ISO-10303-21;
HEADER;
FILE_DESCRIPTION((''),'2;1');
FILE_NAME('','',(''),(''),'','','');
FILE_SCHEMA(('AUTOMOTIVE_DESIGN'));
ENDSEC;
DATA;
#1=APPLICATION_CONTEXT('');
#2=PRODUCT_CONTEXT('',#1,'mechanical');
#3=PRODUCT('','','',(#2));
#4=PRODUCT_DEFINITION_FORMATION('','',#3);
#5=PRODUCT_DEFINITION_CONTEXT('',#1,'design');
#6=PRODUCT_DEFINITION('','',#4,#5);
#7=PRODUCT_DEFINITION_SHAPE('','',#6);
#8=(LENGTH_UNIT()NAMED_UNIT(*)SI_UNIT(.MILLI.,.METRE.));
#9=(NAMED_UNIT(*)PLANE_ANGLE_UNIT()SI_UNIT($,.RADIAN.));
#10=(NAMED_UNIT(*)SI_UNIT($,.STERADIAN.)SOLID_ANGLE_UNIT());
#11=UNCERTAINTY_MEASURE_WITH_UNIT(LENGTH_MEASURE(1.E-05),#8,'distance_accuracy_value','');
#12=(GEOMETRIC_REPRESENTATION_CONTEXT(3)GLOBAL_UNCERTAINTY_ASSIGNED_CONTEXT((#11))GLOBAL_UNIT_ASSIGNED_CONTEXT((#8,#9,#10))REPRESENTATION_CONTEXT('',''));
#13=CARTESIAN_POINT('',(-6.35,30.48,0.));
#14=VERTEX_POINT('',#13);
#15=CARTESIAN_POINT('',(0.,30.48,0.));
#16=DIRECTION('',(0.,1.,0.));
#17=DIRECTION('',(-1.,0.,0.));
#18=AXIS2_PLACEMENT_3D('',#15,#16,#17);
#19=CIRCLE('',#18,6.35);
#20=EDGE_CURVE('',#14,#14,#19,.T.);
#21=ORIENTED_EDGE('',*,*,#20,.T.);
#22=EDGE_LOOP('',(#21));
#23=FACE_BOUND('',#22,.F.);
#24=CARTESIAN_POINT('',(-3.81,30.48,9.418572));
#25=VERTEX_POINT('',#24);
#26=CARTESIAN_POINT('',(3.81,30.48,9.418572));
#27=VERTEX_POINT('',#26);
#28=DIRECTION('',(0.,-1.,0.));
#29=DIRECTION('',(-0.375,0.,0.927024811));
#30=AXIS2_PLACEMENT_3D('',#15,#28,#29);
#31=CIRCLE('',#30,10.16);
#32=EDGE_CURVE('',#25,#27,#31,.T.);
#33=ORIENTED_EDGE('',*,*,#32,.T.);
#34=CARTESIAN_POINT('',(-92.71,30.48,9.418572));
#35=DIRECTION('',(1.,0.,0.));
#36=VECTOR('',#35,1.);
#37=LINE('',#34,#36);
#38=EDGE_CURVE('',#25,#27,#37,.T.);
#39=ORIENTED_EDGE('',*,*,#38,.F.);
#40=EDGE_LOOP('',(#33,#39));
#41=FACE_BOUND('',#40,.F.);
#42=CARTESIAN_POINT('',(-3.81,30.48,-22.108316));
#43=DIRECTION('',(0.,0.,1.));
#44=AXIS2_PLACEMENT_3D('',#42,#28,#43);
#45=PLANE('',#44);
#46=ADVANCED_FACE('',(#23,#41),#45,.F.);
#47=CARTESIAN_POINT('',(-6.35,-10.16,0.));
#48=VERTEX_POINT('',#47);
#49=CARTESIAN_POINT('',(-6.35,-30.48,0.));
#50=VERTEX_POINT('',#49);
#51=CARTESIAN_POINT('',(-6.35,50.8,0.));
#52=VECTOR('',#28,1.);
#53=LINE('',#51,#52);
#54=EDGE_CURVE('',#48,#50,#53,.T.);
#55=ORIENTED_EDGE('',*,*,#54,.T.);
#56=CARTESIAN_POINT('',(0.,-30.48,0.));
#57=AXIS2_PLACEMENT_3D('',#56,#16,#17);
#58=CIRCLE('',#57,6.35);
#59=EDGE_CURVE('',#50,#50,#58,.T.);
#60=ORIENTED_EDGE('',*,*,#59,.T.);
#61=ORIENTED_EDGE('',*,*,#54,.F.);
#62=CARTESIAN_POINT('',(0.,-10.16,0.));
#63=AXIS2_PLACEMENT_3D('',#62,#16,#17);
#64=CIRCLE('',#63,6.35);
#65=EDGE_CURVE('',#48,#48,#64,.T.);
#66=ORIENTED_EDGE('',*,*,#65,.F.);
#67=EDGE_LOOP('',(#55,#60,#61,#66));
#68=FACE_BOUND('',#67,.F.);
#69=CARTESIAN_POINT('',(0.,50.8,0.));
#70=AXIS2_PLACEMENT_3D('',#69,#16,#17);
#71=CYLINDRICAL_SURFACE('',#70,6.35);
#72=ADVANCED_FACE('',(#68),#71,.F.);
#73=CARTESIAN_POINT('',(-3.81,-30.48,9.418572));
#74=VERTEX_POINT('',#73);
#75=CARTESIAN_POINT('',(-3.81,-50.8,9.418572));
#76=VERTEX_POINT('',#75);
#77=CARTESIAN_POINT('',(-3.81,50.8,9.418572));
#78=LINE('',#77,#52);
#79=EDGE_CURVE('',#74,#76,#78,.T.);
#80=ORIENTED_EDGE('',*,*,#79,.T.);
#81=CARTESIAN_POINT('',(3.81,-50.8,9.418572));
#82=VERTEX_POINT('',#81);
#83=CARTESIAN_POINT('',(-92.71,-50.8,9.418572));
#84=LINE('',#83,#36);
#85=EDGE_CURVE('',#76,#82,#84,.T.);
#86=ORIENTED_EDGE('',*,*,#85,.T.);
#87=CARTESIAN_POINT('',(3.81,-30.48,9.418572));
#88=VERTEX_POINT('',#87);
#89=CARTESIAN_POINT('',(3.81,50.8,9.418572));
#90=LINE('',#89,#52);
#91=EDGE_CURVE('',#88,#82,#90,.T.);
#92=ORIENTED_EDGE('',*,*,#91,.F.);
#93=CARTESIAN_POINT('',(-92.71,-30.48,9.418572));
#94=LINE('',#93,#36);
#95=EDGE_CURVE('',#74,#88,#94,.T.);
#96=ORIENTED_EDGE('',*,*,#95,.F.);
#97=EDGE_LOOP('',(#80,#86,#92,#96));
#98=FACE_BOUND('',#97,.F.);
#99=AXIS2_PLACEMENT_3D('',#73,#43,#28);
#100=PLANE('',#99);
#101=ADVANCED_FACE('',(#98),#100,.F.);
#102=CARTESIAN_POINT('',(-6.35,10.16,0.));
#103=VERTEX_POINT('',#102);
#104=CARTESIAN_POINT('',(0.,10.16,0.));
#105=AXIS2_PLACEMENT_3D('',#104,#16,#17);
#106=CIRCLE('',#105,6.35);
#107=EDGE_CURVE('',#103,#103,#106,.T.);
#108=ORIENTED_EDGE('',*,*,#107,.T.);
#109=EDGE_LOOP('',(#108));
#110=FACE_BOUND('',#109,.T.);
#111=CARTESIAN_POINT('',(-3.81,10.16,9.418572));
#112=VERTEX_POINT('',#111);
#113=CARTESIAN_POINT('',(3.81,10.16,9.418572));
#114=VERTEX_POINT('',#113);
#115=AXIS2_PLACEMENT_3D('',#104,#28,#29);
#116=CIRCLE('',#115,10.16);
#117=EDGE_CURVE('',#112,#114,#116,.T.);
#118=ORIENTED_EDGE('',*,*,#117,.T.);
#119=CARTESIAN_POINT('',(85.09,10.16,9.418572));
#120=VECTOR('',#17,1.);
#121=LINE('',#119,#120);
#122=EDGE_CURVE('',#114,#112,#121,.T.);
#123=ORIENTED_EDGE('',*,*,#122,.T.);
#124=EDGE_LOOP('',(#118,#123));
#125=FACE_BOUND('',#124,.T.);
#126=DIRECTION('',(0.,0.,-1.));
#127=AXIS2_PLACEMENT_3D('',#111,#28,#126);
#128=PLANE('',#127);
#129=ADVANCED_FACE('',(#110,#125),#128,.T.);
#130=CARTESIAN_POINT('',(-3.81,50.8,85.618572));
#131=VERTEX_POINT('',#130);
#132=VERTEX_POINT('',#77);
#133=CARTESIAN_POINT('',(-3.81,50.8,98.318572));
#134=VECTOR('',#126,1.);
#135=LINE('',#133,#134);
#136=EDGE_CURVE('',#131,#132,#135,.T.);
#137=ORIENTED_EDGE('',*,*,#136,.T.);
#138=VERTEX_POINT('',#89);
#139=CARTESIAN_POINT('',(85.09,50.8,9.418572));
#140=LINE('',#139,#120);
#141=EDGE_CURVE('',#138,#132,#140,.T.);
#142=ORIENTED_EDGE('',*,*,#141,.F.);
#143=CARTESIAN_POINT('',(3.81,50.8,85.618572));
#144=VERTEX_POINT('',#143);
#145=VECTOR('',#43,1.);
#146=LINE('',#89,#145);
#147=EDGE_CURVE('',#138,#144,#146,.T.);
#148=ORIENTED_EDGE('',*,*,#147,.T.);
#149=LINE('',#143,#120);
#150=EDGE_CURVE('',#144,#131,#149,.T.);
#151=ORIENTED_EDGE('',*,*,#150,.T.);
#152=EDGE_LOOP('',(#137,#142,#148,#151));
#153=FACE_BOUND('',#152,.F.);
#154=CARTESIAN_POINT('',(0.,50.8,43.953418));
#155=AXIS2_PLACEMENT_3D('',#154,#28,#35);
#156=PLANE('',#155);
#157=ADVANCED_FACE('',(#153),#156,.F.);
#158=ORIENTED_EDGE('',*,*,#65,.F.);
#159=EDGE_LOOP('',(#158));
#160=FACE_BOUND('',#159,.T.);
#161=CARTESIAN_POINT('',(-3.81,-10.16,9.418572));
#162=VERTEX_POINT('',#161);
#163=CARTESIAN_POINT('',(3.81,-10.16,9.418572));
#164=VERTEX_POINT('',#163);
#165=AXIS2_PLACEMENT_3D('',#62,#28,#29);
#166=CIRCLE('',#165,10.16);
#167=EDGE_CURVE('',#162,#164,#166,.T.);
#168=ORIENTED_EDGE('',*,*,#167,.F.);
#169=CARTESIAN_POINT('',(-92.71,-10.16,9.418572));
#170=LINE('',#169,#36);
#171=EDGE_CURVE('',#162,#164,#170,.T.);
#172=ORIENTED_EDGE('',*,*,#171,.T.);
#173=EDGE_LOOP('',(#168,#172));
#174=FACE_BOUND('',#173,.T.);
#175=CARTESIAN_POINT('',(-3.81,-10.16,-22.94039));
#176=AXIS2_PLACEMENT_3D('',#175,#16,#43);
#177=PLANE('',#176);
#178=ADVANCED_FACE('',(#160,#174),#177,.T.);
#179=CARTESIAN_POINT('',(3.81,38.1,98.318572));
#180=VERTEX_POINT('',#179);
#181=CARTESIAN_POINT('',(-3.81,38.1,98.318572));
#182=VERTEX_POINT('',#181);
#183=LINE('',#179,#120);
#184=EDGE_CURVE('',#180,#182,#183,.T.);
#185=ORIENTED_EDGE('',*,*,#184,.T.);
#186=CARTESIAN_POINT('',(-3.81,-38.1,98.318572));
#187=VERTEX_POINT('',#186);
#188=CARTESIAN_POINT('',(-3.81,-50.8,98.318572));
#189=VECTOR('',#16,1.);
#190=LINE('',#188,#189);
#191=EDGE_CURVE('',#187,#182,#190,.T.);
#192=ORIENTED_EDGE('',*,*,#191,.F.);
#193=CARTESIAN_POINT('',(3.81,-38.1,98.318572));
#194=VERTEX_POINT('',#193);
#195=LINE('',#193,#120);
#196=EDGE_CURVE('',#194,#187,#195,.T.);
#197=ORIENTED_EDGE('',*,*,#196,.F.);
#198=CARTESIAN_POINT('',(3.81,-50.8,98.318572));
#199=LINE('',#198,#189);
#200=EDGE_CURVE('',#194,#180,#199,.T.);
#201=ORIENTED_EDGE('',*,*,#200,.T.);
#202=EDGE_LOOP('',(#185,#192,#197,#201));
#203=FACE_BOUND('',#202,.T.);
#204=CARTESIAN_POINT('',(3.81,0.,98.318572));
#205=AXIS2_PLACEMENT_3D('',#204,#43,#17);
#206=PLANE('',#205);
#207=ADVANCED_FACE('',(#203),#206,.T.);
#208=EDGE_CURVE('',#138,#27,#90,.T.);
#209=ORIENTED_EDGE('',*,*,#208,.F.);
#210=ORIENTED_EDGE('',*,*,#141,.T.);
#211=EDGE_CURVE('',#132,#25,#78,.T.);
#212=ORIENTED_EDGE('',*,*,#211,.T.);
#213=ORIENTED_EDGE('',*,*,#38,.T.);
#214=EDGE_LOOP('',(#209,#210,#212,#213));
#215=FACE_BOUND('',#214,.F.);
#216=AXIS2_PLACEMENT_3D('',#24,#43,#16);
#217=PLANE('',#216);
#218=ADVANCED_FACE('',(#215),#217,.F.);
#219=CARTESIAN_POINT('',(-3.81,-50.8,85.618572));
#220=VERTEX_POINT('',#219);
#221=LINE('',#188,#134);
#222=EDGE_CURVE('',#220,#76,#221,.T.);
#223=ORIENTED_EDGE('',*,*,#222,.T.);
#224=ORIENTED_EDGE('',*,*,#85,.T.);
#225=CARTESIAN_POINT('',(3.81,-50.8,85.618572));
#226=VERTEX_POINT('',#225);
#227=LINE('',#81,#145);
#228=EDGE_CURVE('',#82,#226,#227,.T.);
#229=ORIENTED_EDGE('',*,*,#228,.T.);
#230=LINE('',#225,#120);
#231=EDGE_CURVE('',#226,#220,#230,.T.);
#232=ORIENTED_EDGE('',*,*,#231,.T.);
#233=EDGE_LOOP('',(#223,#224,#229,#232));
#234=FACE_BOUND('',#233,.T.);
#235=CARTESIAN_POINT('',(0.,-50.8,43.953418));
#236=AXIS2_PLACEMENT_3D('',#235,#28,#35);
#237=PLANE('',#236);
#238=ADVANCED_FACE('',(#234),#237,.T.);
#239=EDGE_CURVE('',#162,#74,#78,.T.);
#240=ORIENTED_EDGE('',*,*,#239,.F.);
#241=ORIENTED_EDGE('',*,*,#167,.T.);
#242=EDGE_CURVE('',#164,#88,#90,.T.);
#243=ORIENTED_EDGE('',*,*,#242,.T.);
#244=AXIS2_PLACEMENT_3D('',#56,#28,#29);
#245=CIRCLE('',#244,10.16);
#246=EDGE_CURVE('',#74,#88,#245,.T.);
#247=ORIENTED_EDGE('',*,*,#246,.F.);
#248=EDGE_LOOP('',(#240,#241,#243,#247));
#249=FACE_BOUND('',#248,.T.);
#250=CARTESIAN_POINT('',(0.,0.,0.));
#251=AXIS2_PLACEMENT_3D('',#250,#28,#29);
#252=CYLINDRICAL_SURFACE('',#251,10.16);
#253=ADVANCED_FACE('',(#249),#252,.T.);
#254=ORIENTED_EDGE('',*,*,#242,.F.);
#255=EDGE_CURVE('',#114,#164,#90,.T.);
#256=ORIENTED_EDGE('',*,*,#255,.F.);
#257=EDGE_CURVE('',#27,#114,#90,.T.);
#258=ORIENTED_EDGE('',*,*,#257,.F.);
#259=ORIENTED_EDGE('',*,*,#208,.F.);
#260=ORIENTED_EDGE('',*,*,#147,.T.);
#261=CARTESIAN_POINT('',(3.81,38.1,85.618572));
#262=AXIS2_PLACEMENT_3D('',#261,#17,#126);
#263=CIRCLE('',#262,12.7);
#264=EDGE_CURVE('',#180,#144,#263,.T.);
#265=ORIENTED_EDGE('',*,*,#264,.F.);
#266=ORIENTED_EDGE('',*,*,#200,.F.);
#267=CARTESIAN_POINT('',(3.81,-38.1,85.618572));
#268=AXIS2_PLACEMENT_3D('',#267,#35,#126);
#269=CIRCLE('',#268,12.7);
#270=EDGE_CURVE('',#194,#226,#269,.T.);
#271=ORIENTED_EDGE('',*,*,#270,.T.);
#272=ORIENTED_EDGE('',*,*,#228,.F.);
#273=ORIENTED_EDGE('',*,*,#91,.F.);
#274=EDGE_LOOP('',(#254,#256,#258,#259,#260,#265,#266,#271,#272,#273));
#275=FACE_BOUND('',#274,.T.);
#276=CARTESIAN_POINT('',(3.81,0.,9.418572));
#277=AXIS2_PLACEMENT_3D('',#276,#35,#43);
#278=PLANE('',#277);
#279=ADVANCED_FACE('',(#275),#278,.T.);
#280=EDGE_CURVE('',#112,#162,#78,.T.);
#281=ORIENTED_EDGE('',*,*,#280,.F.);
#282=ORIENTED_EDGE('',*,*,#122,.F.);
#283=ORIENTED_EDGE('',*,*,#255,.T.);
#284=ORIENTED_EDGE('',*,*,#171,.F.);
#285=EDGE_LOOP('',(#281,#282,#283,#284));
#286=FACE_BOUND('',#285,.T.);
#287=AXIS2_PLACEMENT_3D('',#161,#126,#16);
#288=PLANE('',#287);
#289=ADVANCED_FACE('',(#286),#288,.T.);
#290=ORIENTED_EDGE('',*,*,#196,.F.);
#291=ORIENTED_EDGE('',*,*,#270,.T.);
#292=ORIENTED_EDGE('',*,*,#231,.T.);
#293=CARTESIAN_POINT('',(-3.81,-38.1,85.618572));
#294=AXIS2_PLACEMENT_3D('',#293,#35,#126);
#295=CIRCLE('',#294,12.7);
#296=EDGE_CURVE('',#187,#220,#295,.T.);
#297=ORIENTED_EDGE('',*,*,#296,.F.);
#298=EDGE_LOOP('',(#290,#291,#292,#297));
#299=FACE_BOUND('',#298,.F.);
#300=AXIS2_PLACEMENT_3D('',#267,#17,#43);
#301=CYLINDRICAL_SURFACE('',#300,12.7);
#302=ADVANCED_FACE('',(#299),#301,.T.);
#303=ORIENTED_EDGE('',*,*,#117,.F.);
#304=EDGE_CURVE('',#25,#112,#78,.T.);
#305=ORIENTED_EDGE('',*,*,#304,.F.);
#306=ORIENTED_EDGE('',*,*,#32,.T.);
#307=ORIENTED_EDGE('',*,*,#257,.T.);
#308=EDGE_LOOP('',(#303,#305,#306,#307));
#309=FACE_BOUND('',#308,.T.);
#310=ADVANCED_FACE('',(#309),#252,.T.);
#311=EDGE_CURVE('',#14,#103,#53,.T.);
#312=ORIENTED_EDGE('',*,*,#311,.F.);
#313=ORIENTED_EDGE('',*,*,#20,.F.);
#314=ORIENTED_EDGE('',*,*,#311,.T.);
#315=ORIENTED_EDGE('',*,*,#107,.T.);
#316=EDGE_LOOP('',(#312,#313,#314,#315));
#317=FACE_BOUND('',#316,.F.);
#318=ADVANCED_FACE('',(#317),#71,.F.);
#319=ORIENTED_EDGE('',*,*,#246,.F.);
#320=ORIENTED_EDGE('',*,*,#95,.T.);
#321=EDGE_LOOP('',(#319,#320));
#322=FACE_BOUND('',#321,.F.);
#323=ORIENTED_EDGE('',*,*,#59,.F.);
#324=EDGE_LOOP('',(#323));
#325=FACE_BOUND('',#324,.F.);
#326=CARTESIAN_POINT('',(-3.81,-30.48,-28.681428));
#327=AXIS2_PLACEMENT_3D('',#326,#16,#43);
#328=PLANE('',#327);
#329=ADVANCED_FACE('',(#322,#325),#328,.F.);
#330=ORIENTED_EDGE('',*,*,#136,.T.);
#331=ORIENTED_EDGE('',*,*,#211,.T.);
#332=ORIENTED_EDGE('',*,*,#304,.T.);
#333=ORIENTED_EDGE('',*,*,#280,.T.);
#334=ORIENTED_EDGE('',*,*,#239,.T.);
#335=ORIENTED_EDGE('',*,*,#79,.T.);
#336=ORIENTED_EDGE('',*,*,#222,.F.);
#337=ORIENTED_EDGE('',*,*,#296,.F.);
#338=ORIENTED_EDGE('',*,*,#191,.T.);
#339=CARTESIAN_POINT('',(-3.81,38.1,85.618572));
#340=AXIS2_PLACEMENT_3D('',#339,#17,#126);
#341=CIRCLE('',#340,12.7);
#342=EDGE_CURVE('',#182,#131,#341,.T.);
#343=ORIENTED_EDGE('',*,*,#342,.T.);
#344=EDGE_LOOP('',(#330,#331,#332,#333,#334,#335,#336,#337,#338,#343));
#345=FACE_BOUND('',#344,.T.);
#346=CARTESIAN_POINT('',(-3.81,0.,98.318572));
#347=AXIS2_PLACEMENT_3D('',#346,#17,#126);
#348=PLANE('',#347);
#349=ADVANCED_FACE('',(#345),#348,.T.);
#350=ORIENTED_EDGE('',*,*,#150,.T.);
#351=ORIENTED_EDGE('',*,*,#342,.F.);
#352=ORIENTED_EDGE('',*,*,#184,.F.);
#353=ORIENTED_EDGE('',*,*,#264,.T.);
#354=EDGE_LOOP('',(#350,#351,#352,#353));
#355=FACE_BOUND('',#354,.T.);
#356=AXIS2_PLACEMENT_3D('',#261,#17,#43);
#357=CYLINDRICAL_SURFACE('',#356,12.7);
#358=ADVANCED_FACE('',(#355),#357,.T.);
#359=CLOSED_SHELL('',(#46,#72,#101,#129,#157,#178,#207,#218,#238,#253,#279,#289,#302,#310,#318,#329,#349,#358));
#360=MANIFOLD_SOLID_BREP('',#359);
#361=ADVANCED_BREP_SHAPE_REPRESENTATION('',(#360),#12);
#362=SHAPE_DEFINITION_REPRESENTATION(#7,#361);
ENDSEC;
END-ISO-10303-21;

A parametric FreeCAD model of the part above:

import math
import FreeCAD as App
import Part
import Sketcher
from FreeCAD import Vector
Q = App.Units.Quantity


def edges_at(feature, points):
    """Names of the edges that pass closest to the given points."""
    edges = feature.Shape.Edges
    near = lambda p: min(range(len(edges)), key=lambda i: edges[i].distToShape(Part.Vertex(*p))[0])
    return sorted({f"Edge{near(p) + 1}" for p in points})


def add_polygon(sketch, points):
    """Adds a closed chain of lines whose ends are joined by coincident constraints."""
    first, n = sketch.GeometryCount, len(points)
    for a, b in zip(points, points[1:] + points[:1]):
        sketch.addGeometry(Part.LineSegment(App.Vector(*a, 0), App.Vector(*b, 0)), False)
    for i in range(n):
        sketch.addConstraint(Sketcher.Constraint("Coincident", first + i, 2, first + (i + 1) % n, 1))

doc = App.newDocument("Part")
body = doc.addObject("PartDesign::Body", "Body")

sketch1 = body.newObject("Sketcher::SketchObject", "Sketch")
sketch1.AttachmentSupport = (doc.getObject("XZ_Plane"), [""])
sketch1.MapMode = "FlatFace"
sketch1.addGeometry([
    Part.LineSegment(Vector(-3.81, 98.318572, 0), Vector(-3.81, 9.418572, 0)),
    Part.ArcOfCircle(Part.Circle(Vector(0, 0, 0), Vector(0, 0, 1), 10.16), math.radians(112.024313), math.radians(427.975687)),
    Part.LineSegment(Vector(3.81, 9.418572, 0), Vector(3.81, 98.318572, 0)),
    Part.LineSegment(Vector(3.81, 98.318572, 0), Vector(-3.81, 98.318572, 0)),
], False)
sketch1.addConstraint([
    Sketcher.Constraint("Coincident", 0, 2, 1, 1),
    Sketcher.Constraint("Coincident", 1, 2, 2, 1),
    Sketcher.Constraint("Coincident", 2, 2, 3, 1),
    Sketcher.Constraint("Coincident", 3, 2, 0, 1),
    Sketcher.Constraint("Vertical", 0),
    Sketcher.Constraint("Vertical", 2),
    Sketcher.Constraint("Horizontal", 3),
    Sketcher.Constraint("Coincident", 1, 3, -1, 1),
    Sketcher.Constraint("Horizontal", 0, 2, 1, 2),
    Sketcher.Constraint("Radius", 1, Q("0.4 in")),
    Sketcher.Constraint("DistanceX", 3, 2, 3, 1, Q("0.3 in")),
    Sketcher.Constraint("DistanceY", 0, 2, 0, 1, Q("3.5 in")),
])
pad1 = body.newObject("PartDesign::Pad", "Pad")
pad1.Profile = sketch1
pad1.Length = Q("4 in")
pad1.Midplane = True
doc.recompute()

fillet = body.newObject("PartDesign::Fillet", "Fillet")
fillet.Base = (pad1, edges_at(pad1, [(0, -50.8, 98.319), (0, 50.8, 98.319)]))
fillet.Radius = Q("0.5 in")

sketch2 = body.newObject("Sketcher::SketchObject", "Sketch001")
sketch2.AttachmentSupport = (doc.getObject("XZ_Plane"), [""])
sketch2.MapMode = "FlatFace"
sketch2.AttachmentOffset = App.Placement(Vector(0, 0, -2 * 25.4), App.Rotation())
sketch2.addGeometry(Part.Circle(Vector(0, 0, 0), Vector(0, 0, 1), 6.35), False)
sketch2.addConstraint([
    Sketcher.Constraint("Coincident", 0, 3, -1, 1),
    Sketcher.Constraint("Diameter", 0, Q("0.5 in")),
])
pocket1 = body.newObject("PartDesign::Pocket", "Pocket")
pocket1.Profile = sketch2
pocket1.Type = "ThroughAll"
pocket1.Reversed = True

sketch3 = body.newObject("Sketcher::SketchObject", "Sketch002")
sketch3.AttachmentSupport = (doc.getObject("YZ_Plane"), [""])
sketch3.MapMode = "FlatFace"
sketch3.AttachmentOffset = App.Placement(Vector(0, 0, -0.15 * 25.4), App.Rotation())
add_polygon(sketch3, [(-30.48, 9.418572), (-30.48, -28.681428), (-50.8, -28.681428), (-50.8, 9.418572)])
add_polygon(sketch3, [(-10.16, 9.418572), (10.16, 9.418572), (10.16, -22.94039), (-10.16, -22.94039)])
add_polygon(sketch3, [(30.48, 9.418572), (50.8, 9.418572), (50.8, -22.108316), (30.48, -22.108316)])
sketch3.addConstraint([
    Sketcher.Constraint("Vertical", 0),
    Sketcher.Constraint("Horizontal", 1),
    Sketcher.Constraint("Vertical", 2),
    Sketcher.Constraint("Horizontal", 3),
    Sketcher.Constraint("Horizontal", 4),
    Sketcher.Constraint("Vertical", 5),
    Sketcher.Constraint("Horizontal", 6),
    Sketcher.Constraint("Vertical", 7),
    Sketcher.Constraint("Horizontal", 8),
    Sketcher.Constraint("Vertical", 9),
    Sketcher.Constraint("Horizontal", 10),
    Sketcher.Constraint("Vertical", 11),
    Sketcher.Constraint("Symmetric", 2, 2, 8, 2, -2),
    Sketcher.Constraint("Horizontal", 3, 2, 4, 2),
    Sketcher.Constraint("Equal", 3, 4),
    Sketcher.Constraint("Equal", 6, 8),
    Sketcher.Constraint("DistanceX", 1, 2, 1, 1, Q("0.8 in")),
    Sketcher.Constraint("DistanceY", 0, 2, 0, 1, Q("1.5 in")),
    Sketcher.Constraint("DistanceX", 1, 2, -1, 1, Q("2 in")),
    Sketcher.Constraint("DistanceX", -1, 1, 4, 2, Q("0.4 in")),
    Sketcher.Constraint("DistanceY", 5, 2, 5, 1, Q("32.358962 mm")),
    Sketcher.Constraint("DistanceY", 9, 2, 9, 1, Q("31.526889 mm")),
    Sketcher.Constraint("DistanceY", 5, 2, -1, 1, Q("22.94039 mm")),
])
pocket2 = body.newObject("PartDesign::Pocket", "Pocket001")
pocket2.Profile = sketch3
pocket2.Length = Q("7 in")
pocket2.Midplane = True

doc.recompute()
